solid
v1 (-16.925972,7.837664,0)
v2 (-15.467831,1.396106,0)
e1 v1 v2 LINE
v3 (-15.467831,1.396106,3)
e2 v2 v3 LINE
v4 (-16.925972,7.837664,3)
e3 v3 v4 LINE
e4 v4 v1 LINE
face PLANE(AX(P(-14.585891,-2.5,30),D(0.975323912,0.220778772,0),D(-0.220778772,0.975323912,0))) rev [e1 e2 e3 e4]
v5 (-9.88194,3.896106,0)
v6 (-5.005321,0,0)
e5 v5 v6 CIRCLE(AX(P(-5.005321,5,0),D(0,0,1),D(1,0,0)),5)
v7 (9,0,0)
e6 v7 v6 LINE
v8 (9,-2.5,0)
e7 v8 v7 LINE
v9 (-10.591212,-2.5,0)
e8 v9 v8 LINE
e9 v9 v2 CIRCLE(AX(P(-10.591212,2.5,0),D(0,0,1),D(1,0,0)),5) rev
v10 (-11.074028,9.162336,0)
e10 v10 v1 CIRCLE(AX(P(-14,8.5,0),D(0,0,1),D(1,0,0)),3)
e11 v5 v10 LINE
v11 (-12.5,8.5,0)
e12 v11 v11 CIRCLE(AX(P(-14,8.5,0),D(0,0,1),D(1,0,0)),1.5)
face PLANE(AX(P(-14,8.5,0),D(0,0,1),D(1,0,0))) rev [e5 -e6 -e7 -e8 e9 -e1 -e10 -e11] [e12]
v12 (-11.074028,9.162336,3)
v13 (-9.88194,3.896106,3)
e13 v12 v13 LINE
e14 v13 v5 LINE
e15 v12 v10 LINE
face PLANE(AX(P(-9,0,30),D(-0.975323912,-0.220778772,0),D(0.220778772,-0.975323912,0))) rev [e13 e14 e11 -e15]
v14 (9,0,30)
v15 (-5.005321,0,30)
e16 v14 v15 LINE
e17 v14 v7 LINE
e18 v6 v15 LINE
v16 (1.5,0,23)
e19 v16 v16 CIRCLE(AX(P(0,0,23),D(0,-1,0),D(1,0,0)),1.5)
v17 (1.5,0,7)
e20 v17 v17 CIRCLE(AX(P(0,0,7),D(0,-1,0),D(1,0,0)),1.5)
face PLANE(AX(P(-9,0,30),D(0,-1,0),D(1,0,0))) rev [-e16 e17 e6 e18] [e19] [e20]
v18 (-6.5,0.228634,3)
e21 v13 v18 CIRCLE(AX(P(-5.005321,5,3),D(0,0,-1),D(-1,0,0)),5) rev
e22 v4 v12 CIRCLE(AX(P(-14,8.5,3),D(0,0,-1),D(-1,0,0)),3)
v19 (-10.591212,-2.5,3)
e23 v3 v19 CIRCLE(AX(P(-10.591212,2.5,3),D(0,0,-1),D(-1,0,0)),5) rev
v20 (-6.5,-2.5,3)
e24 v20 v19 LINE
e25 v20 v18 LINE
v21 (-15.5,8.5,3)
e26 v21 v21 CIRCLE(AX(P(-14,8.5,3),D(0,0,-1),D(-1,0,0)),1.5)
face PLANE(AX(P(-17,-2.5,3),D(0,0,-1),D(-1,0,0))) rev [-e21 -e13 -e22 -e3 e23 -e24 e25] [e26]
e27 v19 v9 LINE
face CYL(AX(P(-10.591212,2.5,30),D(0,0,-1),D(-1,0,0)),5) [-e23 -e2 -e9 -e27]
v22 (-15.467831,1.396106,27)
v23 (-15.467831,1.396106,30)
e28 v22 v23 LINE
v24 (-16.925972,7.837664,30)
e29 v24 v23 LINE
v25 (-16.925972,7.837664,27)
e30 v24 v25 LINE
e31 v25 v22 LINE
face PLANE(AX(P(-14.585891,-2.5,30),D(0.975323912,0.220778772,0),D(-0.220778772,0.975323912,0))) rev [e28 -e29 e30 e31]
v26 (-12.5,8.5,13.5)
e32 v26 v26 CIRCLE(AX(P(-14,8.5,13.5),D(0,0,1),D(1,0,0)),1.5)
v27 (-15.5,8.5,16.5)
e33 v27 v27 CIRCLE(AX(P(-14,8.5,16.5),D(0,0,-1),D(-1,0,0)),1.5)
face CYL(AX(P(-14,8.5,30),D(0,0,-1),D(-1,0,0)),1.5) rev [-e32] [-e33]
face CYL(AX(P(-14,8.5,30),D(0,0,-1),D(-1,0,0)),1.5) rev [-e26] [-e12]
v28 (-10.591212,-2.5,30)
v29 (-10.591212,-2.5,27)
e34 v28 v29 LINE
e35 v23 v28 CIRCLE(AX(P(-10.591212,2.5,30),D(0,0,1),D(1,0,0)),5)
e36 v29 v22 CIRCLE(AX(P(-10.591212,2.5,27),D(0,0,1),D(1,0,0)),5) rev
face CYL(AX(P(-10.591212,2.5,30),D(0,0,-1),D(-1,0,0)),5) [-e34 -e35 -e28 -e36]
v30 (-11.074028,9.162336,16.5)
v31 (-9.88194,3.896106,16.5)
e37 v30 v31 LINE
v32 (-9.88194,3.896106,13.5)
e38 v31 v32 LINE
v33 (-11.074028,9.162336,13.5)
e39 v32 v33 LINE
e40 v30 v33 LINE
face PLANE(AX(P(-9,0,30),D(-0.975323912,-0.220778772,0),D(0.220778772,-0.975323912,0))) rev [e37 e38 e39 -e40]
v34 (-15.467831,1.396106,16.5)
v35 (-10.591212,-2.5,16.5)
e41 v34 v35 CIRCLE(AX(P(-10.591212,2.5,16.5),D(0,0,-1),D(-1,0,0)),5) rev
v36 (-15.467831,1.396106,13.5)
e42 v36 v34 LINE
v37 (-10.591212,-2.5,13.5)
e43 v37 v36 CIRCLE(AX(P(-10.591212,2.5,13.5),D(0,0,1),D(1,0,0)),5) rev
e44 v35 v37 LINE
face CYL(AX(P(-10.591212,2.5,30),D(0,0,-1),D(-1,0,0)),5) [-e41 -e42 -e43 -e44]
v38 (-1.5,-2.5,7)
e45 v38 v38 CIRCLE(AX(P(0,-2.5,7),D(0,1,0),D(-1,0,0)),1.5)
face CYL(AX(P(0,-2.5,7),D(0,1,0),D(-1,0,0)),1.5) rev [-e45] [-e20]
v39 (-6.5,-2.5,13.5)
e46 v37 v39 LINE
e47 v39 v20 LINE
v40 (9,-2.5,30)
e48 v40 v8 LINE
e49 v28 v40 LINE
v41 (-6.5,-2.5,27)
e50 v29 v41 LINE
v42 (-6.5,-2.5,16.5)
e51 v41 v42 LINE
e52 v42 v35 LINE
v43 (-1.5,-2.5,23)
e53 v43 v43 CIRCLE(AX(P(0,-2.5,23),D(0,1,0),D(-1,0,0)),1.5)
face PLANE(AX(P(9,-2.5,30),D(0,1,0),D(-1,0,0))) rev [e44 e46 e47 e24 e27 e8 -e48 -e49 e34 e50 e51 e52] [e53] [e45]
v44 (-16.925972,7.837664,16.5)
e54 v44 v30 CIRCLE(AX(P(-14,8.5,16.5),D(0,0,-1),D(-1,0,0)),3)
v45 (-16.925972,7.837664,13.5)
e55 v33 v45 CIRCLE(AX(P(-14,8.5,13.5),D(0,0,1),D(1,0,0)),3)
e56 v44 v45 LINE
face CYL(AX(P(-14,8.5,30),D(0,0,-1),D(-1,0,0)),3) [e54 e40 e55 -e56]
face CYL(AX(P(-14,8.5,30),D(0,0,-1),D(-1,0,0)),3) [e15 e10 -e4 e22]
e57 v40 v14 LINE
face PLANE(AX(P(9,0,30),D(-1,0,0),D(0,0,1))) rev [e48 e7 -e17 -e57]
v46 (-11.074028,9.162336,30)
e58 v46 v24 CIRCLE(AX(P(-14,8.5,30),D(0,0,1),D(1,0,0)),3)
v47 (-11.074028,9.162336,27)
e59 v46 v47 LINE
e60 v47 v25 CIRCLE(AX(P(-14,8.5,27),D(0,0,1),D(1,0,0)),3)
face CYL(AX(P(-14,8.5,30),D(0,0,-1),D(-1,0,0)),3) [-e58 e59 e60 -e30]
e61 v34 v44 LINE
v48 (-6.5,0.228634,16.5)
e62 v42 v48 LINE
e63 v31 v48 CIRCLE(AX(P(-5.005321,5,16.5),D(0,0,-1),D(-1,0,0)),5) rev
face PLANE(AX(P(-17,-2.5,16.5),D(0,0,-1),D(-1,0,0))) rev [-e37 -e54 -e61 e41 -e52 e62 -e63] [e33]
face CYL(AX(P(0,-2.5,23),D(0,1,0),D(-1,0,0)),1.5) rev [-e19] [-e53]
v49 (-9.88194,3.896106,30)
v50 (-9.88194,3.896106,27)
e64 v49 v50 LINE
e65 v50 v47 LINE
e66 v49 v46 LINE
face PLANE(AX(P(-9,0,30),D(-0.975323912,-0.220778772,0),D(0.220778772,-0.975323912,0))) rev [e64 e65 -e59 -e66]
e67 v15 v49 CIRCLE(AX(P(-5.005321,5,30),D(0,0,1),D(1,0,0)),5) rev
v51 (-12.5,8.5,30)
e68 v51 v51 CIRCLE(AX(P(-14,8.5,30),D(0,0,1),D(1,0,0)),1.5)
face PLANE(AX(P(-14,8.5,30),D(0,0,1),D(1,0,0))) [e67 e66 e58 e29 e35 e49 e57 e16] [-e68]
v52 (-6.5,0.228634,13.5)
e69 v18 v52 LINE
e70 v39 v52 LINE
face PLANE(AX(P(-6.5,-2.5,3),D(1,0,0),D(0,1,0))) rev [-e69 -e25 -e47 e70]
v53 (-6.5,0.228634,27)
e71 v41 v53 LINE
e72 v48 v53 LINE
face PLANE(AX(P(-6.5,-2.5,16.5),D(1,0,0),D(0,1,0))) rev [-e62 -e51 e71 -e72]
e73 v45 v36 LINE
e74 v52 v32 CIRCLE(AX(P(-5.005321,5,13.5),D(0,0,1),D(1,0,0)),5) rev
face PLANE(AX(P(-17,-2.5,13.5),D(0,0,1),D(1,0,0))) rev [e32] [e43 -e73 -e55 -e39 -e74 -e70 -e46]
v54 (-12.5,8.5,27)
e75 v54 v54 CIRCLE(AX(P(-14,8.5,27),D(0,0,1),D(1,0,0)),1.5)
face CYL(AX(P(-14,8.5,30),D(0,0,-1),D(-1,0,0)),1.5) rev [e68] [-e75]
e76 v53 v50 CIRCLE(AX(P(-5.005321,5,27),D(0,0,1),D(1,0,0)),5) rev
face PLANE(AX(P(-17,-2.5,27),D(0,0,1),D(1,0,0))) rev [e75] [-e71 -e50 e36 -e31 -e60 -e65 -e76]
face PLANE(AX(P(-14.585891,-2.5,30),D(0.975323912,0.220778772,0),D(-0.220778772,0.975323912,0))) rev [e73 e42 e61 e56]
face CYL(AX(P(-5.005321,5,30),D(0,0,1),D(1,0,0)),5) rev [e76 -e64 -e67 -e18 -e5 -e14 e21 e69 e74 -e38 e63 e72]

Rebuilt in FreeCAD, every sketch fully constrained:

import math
import FreeCAD as App
import Part
import Sketcher
from FreeCAD import Vector


def edges_at(feature, points):
    """Names of the edges that pass closest to the given points."""
    edges = feature.Shape.Edges
    near = lambda p: min(range(len(edges)), key=lambda i: edges[i].distToShape(Part.Vertex(*p))[0])
    return sorted({f"Edge{near(p) + 1}" for p in points})

doc = App.newDocument("Part")
body = doc.addObject("PartDesign::Body", "Body")

# Sketch on XY plane
sketch1 = body.newObject("Sketcher::SketchObject", "Sketch")
sketch1.AttachmentSupport = (doc.getObject("XY_Plane"), [""])
sketch1.MapMode = "FlatFace"
sketch1.addGeometry([
    Part.LineSegment(Vector(9, 0, 0), Vector(-9, 0, 0)),  # 0
    Part.LineSegment(Vector(-9, 0, 0), Vector(-11.074028, 9.162336, 0)),  # 1
    Part.ArcOfCircle(Part.Circle(Vector(-14, 8.5, 0), Vector(0, 0, 1), 3), math.radians(12.754778), math.radians(192.754778)),  # 2
    Part.LineSegment(Vector(-16.925972, 7.837664, 0), Vector(-14.585891, -2.5, 0)),  # 3
    Part.LineSegment(Vector(-14.585891, -2.5, 0), Vector(9, -2.5, 0)),  # 4
    Part.LineSegment(Vector(9, -2.5, 0), Vector(9, 0, 0)),  # 5
    Part.Circle(Vector(-14, 8.5, 0), Vector(0, 0, 1), 1.5),  # 6
], False)
sketch1.addConstraint([
    Sketcher.Constraint("Coincident", 0, 2, 1, 1),
    Sketcher.Constraint("Tangent", 1, 2, 2, 1),
    Sketcher.Constraint("Tangent", 2, 2, 3, 1),
    Sketcher.Constraint("Coincident", 3, 2, 4, 1),
    Sketcher.Constraint("Coincident", 4, 2, 5, 1),
    Sketcher.Constraint("Coincident", 5, 2, 0, 1),
    Sketcher.Constraint("Horizontal", 0),
    Sketcher.Constraint("Horizontal", 4),
    Sketcher.Constraint("Vertical", 5),
    Sketcher.Constraint("Coincident", 6, 3, 2, 3),
    Sketcher.Constraint("Symmetric", 0, 2, 5, 2, -1, 1),
    Sketcher.Constraint("Parallel", 1, 3),
    Sketcher.Constraint("Diameter", 6, 3.0),
    Sketcher.Constraint("Radius", 2, 3.0),
    Sketcher.Constraint("DistanceX", 0, 2, 0, 1, 18.0),
    Sketcher.Constraint("DistanceY", 5, 1, 5, 2, 2.5),
    Sketcher.Constraint("DistanceX", 2, 3, -1, 1, 14.0),
    Sketcher.Constraint("DistanceY", 3, 2, 2, 3, 11.0),
])
pad1 = body.newObject("PartDesign::Pad", "Pad")
pad1.Profile = sketch1
pad1.Length = 30
doc.recompute()

fillet = body.newObject("PartDesign::Fillet", "Fillet")
fillet.Base = (pad1, edges_at(pad1, [(-14.586, -2.5, 15), (-9, 0, 15)]))
fillet.Radius = 5

# Sketch on XZ plane
sketch2 = body.newObject("Sketcher::SketchObject", "Sketch001")
sketch2.AttachmentSupport = (doc.getObject("XZ_Plane"), [""])
sketch2.MapMode = "FlatFace"
sketch2.addGeometry([
    Part.Circle(Vector(0, 7, 0), Vector(0, 0, 1), 1.5),  # 0
    Part.Circle(Vector(0, 23, 0), Vector(0, 0, 1), 1.5),  # 1
    Part.LineSegment(Vector(-17, 3, 0), Vector(-17, 13.5, 0)),  # 2
    Part.LineSegment(Vector(-17, 13.5, 0), Vector(-6.5, 13.5, 0)),  # 3
    Part.LineSegment(Vector(-6.5, 13.5, 0), Vector(-6.5, 3, 0)),  # 4
    Part.LineSegment(Vector(-6.5, 3, 0), Vector(-17, 3, 0)),  # 5
    Part.LineSegment(Vector(-17, 16.5, 0), Vector(-17, 27, 0)),  # 6
    Part.LineSegment(Vector(-17, 27, 0), Vector(-6.5, 27, 0)),  # 7
    Part.LineSegment(Vector(-6.5, 27, 0), Vector(-6.5, 16.5, 0)),  # 8
    Part.LineSegment(Vector(-6.5, 16.5, 0), Vector(-17, 16.5, 0)),  # 9
], False)
sketch2.addConstraint([
    Sketcher.Constraint("Coincident", 2, 2, 3, 1),
    Sketcher.Constraint("Coincident", 3, 2, 4, 1),
    Sketcher.Constraint("Coincident", 4, 2, 5, 1),
    Sketcher.Constraint("Coincident", 5, 2, 2, 1),
    Sketcher.Constraint("Coincident", 6, 2, 7, 1),
    Sketcher.Constraint("Coincident", 7, 2, 8, 1),
    Sketcher.Constraint("Coincident", 8, 2, 9, 1),
    Sketcher.Constraint("Coincident", 9, 2, 6, 1),
    Sketcher.Constraint("Vertical", 2),
    Sketcher.Constraint("Horizontal", 3),
    Sketcher.Constraint("Vertical", 4),
    Sketcher.Constraint("Horizontal", 5),
    Sketcher.Constraint("Vertical", 6),
    Sketcher.Constraint("Horizontal", 7),
    Sketcher.Constraint("Vertical", 8),
    Sketcher.Constraint("Horizontal", 9),
    Sketcher.Constraint("Equal", 0, 1),
    Sketcher.Constraint("PointOnObject", 0, 3, -2),
    Sketcher.Constraint("PointOnObject", 1, 3, -2),
    Sketcher.Constraint("Vertical", 5, 2, 6, 2),
    Sketcher.Constraint("Vertical", 4, 2, 7, 2),
    Sketcher.Constraint("Equal", 9, 2),
    Sketcher.Constraint("Equal", 4, 6),
    Sketcher.Constraint("Diameter", 0, 3.0),
    Sketcher.Constraint("DistanceX", 3, 1, 3, 2, 10.5),
    Sketcher.Constraint("DistanceY", -1, 1, 0, 3, 7.0),
    Sketcher.Constraint("DistanceY", -1, 1, 1, 3, 23.0),
    Sketcher.Constraint("DistanceX", 2, 2, -1, 1, 17.0),
    Sketcher.Constraint("DistanceY", -1, 1, 4, 2, 3.0),
    Sketcher.Constraint("DistanceY", -1, 1, 6, 2, 27.0),
])
pocket1 = body.newObject("PartDesign::Pocket", "Pocket")
pocket1.Profile = sketch2
pocket1.Type = "ThroughAll"
pocket1.Midplane = True

doc.recompute()
